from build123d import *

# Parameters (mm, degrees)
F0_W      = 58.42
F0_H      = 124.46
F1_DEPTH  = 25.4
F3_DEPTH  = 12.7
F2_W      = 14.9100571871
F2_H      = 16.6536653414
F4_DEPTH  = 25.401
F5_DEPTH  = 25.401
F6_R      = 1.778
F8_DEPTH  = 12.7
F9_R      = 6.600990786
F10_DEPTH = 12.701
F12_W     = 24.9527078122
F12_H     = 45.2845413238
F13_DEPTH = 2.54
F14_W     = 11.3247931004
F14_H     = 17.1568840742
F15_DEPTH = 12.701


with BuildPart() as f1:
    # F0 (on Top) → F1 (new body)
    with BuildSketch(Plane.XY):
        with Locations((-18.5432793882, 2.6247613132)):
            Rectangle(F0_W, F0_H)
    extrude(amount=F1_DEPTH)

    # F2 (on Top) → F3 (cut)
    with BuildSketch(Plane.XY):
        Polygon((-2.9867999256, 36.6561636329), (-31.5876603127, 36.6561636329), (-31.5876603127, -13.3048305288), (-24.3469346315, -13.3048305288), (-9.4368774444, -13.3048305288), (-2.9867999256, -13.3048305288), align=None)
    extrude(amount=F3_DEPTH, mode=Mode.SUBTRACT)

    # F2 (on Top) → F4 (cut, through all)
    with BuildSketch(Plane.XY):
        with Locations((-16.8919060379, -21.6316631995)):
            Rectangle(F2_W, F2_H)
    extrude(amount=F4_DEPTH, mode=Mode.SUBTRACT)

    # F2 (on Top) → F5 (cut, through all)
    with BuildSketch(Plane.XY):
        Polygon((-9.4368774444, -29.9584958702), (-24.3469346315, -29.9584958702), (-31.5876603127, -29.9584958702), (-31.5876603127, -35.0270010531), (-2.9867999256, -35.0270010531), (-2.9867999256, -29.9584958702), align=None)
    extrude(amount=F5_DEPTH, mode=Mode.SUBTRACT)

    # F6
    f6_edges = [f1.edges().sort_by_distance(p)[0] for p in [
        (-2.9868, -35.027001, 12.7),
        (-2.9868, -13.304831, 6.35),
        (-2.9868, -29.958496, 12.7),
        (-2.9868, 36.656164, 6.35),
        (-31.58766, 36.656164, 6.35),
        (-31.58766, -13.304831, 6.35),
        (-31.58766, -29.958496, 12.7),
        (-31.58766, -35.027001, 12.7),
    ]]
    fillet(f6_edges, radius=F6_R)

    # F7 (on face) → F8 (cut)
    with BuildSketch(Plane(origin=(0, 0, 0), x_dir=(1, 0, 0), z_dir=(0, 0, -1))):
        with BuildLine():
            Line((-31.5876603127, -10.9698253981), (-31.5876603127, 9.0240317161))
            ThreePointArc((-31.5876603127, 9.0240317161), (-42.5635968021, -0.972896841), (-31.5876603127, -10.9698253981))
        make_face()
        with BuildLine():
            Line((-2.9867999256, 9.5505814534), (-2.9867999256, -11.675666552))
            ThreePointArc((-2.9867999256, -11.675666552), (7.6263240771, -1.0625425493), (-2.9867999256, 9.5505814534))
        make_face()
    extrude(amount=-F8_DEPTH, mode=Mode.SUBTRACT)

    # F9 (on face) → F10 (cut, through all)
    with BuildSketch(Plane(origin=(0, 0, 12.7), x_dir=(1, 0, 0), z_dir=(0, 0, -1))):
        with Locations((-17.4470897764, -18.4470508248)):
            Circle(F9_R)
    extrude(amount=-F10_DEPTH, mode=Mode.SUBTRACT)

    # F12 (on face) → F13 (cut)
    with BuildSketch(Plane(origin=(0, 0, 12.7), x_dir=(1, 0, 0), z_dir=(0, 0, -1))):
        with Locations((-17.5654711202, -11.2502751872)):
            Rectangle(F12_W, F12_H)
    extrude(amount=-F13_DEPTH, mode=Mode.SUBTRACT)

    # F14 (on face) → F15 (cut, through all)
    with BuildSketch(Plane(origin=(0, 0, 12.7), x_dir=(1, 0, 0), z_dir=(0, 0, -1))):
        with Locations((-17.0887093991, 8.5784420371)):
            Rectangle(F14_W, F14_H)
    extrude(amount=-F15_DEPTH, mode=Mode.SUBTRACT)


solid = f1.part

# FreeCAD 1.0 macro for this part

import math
import FreeCAD as App
import Part
import Sketcher

V = App.Vector
Q = App.Units.Quantity


def edges_at(feature, points):
    """Names of the edges that pass closest to the given points."""
    edges = feature.Shape.Edges
    near = lambda p: min(range(len(edges)), key=lambda i: edges[i].distToShape(Part.Vertex(*p))[0])
    return sorted({f"Edge{near(p) + 1}" for p in points})


def add_polygon(sketch, points):
    """Adds a closed chain of lines whose ends are joined by coincident constraints."""
    first, n = sketch.GeometryCount, len(points)
    for a, b in zip(points, points[1:] + points[:1]):
        sketch.addGeometry(Part.LineSegment(App.Vector(*a, 0), App.Vector(*b, 0)), False)
    for i in range(n):
        sketch.addConstraint(Sketcher.Constraint("Coincident", first + i, 2, first + (i + 1) % n, 1))

doc = App.newDocument("Part")
params = doc.addObject("Spreadsheet::Sheet", "Params")
for row, (alias, value) in enumerate([
    ("sketch1_width", "2.3 in"),
    ("sketch1_height", "4.9 in"),
    ("pad1_length", "1 in"),
    ("pocket1_length", "0.5 in"),
    ("fillet_radius", "0.07 in"),
    ("pocket4_length", "0.5 in"),
    ("pocket6_length", "0.1 in"),
], start=1):
    params.set(f"A{row}", alias)
    params.set(f"B{row}", "=" + value)
    params.setAlias(f"B{row}", alias)

body = doc.addObject("PartDesign::Body", "Body")

# Sketch on XY plane
sketch1 = body.newObject("Sketcher::SketchObject", "Sketch")
sketch1.AttachmentSupport = (doc.getObject("XY_Plane"), [""])
sketch1.MapMode = "FlatFace"
add_polygon(sketch1, [(-47.753279, 64.854761), (-47.753279, -59.605239), (10.666721, -59.605239), (10.666721, 64.854761)])  # lines 0-3
sketch1.addConstraint([
    Sketcher.Constraint("Vertical", 0),
    Sketcher.Constraint("Horizontal", 1),
    Sketcher.Constraint("Vertical", 2),
    Sketcher.Constraint("Horizontal", 3),
    Sketcher.Constraint("DistanceX", 1, 1, 1, 2, Q("2.3 in")),
    Sketcher.Constraint("DistanceY", 0, 2, 0, 1, Q("4.9 in")),
    Sketcher.Constraint("DistanceX", 0, 2, -1, 1, 47.753279),
    Sketcher.Constraint("DistanceY", 0, 2, -1, 1, 59.605239),
])
sketch1.setExpression("Constraints[8]", "Params.sketch1_width")
sketch1.setExpression("Constraints[9]", "Params.sketch1_height")
pad1 = body.newObject("PartDesign::Pad", "Pad")
pad1.Profile = sketch1
pad1.setExpression("Length", "Params.pad1_length")

# Sketch on XY plane
sketch2 = body.newObject("Sketcher::SketchObject", "Sketch001")
sketch2.AttachmentSupport = (doc.getObject("XY_Plane"), [""])
sketch2.MapMode = "FlatFace"
add_polygon(sketch2, [(-2.9868, 36.656164), (-31.58766, 36.656164), (-31.58766, -13.304831), (-2.9868, -13.304831)])  # lines 0-3
sketch2.addConstraint([
    Sketcher.Constraint("Horizontal", 0),
    Sketcher.Constraint("Vertical", 1),
    Sketcher.Constraint("Horizontal", 2),
    Sketcher.Constraint("Vertical", 3),
    Sketcher.Constraint("DistanceX", 0, 2, 0, 1, 28.60086),
    Sketcher.Constraint("DistanceX", 2, 2, -1, 1, 2.9868),
    Sketcher.Constraint("DistanceY", 1, 2, 1, 1, 49.960994),
    Sketcher.Constraint("DistanceY", 1, 2, -1, 1, 13.304831),
])
pocket1 = body.newObject("PartDesign::Pocket", "Pocket")
pocket1.Profile = sketch2
pocket1.setExpression("Length", "Params.pocket1_length")
pocket1.Reversed = True

# Sketch on XY plane
sketch3 = body.newObject("Sketcher::SketchObject", "Sketch002")
sketch3.AttachmentSupport = (doc.getObject("XY_Plane"), [""])
sketch3.MapMode = "FlatFace"
add_polygon(sketch3, [(-24.346935, -13.304831), (-24.346935, -29.958496), (-9.436877, -29.958496), (-9.436877, -13.304831)])  # lines 0-3
sketch3.addConstraint([
    Sketcher.Constraint("Vertical", 0),
    Sketcher.Constraint("Horizontal", 1),
    Sketcher.Constraint("Vertical", 2),
    Sketcher.Constraint("Horizontal", 3),
    Sketcher.Constraint("DistanceX", 1, 1, 1, 2, 14.910057),
    Sketcher.Constraint("DistanceY", 0, 2, 0, 1, 16.653665),
    Sketcher.Constraint("DistanceY", 2, 2, -1, 1, 13.304831),
    Sketcher.Constraint("DistanceX", 0, 2, -1, 1, 24.346935),
])
pocket2 = body.newObject("PartDesign::Pocket", "Pocket001")
pocket2.Profile = sketch3
pocket2.Type = "ThroughAll"
pocket2.Reversed = True

# Sketch on XY plane
sketch4 = body.newObject("Sketcher::SketchObject", "Sketch003")
sketch4.AttachmentSupport = (doc.getObject("XY_Plane"), [""])
sketch4.MapMode = "FlatFace"
add_polygon(sketch4, [(-31.58766, -29.958496), (-31.58766, -35.027001), (-2.9868, -35.027001), (-2.9868, -29.958496)])  # lines 0-3
sketch4.addConstraint([
    Sketcher.Constraint("Vertical", 0),
    Sketcher.Constraint("Horizontal", 1),
    Sketcher.Constraint("Vertical", 2),
    Sketcher.Constraint("Horizontal", 3),
    Sketcher.Constraint("DistanceX", 1, 1, 1, 2, 28.60086),
    Sketcher.Constraint("DistanceY", 0, 2, -1, 1, 35.027001),
    Sketcher.Constraint("DistanceX", 1, 2, -1, 1, 2.9868),
    Sketcher.Constraint("DistanceY", 0, 2, 0, 1, 5.068505),
])
pocket3 = body.newObject("PartDesign::Pocket", "Pocket002")
pocket3.Profile = sketch4
pocket3.Type = "ThroughAll"
pocket3.Reversed = True
doc.recompute()

fillet = body.newObject("PartDesign::Fillet", "Fillet")
fillet.Base = (pocket3, edges_at(pocket3, [
    (-2.987, -35.027, 12.7),
    (-2.987, -13.305, 6.35),
    (-2.987, -29.958, 12.7),
    (-2.987, 36.656, 6.35),
    (-31.588, 36.656, 6.35),
    (-31.588, -13.305, 6.35),
    (-31.588, -29.958, 12.7),
    (-31.588, -35.027, 12.7),
]))
fillet.setExpression("Radius", "Params.fillet_radius")

# Sketch on XY plane
sketch5 = body.newObject("Sketcher::SketchObject", "Sketch004")
sketch5.AttachmentSupport = (doc.getObject("XY_Plane"), [""])
sketch5.MapMode = "FlatFace"
sketch5.addGeometry([
    Part.LineSegment(V(-31.58766, 10.969825, 0), V(-31.58766, -9.024032, 0)),
    Part.ArcOfCircle(Part.Circle(V(-32.523007, 0.972897, 0), V(0, 0, 1), 10.04059), math.radians(84.654776), math.radians(275.345224)),
    Part.LineSegment(V(-2.9868, -9.550581, 0), V(-2.9868, 11.675667, 0)),
    Part.ArcOfCircle(Part.Circle(V(-2.9868, 1.062543, 0), V(0, 0, 1), 10.613124), math.radians(-90), math.radians(90)),
], False)
sketch5.addConstraint([
    Sketcher.Constraint("Coincident", 0, 1, 1, 1),
    Sketcher.Constraint("Coincident", 1, 2, 0, 2),
    Sketcher.Constraint("Coincident", 2, 1, 3, 1),
    Sketcher.Constraint("Coincident", 3, 2, 2, 2),
    Sketcher.Constraint("Vertical", 0),
    Sketcher.Constraint("Vertical", 2),
    Sketcher.Constraint("Vertical", 3, 3, 2, 1),
    Sketcher.Constraint("Radius", 1, 10.04059),
    Sketcher.Constraint("Radius", 3, 10.613124),
    Sketcher.Constraint("DistanceX", 3, 3, -1, 1, 2.9868),
    Sketcher.Constraint("DistanceY", 1, 2, 3, 2, 20.699698),
    Sketcher.Constraint("DistanceY", 0, 2, 0, 1, 19.993857),
    Sketcher.Constraint("DistanceX", 0, 1, -1, 1, 31.58766),
    Sketcher.Constraint("DistanceY", 1, 2, -1, 1, 9.024032),
])
pocket4 = body.newObject("PartDesign::Pocket", "Pocket003")
pocket4.Profile = sketch5
pocket4.setExpression("Length", "Params.pocket4_length")
pocket4.Reversed = True

# Sketch on XY plane
sketch6 = body.newObject("Sketcher::SketchObject", "Sketch005")
sketch6.AttachmentSupport = (doc.getObject("XY_Plane"), [""])
sketch6.MapMode = "FlatFace"
sketch6.AttachmentOffset = App.Placement(V(0, 0, 0.5 * 25.4), App.Rotation())
sketch6.addGeometry(Part.Circle(V(-17.44709, 18.447051, 0), V(0, 0, 1), 6.600991), False)
sketch6.addConstraint([
    Sketcher.Constraint("Diameter", 0, 13.201982),
    Sketcher.Constraint("DistanceX", 0, 3, -1, 1, 17.44709),
    Sketcher.Constraint("DistanceY", -1, 1, 0, 3, 18.447051),
])
pocket5 = body.newObject("PartDesign::Pocket", "Pocket004")
pocket5.Profile = sketch6
pocket5.Type = "ThroughAll"
pocket5.Reversed = True

# Sketch on XY plane
sketch7 = body.newObject("Sketcher::SketchObject", "Sketch006")
sketch7.AttachmentSupport = (doc.getObject("XY_Plane"), [""])
sketch7.MapMode = "FlatFace"
sketch7.AttachmentOffset = App.Placement(V(0, 0, 0.5 * 25.4), App.Rotation())
add_polygon(sketch7, [(-30.041825, -11.391995), (-30.041825, 33.892546), (-5.089117, 33.892546), (-5.089117, -11.391995)])  # lines 0-3
sketch7.addConstraint([
    Sketcher.Constraint("Vertical", 0),
    Sketcher.Constraint("Horizontal", 1),
    Sketcher.Constraint("Vertical", 2),
    Sketcher.Constraint("Horizontal", 3),
    Sketcher.Constraint("DistanceY", 0, 1, 0, 2, 45.284541),
    Sketcher.Constraint("DistanceX", 1, 1, 1, 2, 24.952708),
    Sketcher.Constraint("DistanceX", 0, 2, -1, 1, 30.041825),
    Sketcher.Constraint("DistanceY", -1, 1, 0, 2, 33.892546),
])
pocket6 = body.newObject("PartDesign::Pocket", "Pocket005")
pocket6.Profile = sketch7
pocket6.setExpression("Length", "Params.pocket6_length")
pocket6.Reversed = True

# Sketch on XY plane
sketch8 = body.newObject("Sketcher::SketchObject", "Sketch007")
sketch8.AttachmentSupport = (doc.getObject("XY_Plane"), [""])
sketch8.MapMode = "FlatFace"
sketch8.AttachmentOffset = App.Placement(V(0, 0, 0.5 * 25.4), App.Rotation())
add_polygon(sketch8, [(-22.751106, -17.156884), (-22.751106, 0), (-11.426313, 0), (-11.426313, -17.156884)])  # lines 0-3
sketch8.addConstraint([
    Sketcher.Constraint("Vertical", 0),
    Sketcher.Constraint("Horizontal", 1),
    Sketcher.Constraint("Vertical", 2),
    Sketcher.Constraint("Horizontal", 3),
    Sketcher.Constraint("PointOnObject", 0, 2, -1),
    Sketcher.Constraint("DistanceX", 1, 1, 1, 2, 11.324793),
    Sketcher.Constraint("DistanceY", 0, 1, 0, 2, 17.156884),
    Sketcher.Constraint("DistanceX", 0, 2, -1, 1, 22.751106),
])
pocket7 = body.newObject("PartDesign::Pocket", "Pocket006")
pocket7.Profile = sketch8
pocket7.Type = "ThroughAll"
pocket7.Reversed = True

doc.recompute()
